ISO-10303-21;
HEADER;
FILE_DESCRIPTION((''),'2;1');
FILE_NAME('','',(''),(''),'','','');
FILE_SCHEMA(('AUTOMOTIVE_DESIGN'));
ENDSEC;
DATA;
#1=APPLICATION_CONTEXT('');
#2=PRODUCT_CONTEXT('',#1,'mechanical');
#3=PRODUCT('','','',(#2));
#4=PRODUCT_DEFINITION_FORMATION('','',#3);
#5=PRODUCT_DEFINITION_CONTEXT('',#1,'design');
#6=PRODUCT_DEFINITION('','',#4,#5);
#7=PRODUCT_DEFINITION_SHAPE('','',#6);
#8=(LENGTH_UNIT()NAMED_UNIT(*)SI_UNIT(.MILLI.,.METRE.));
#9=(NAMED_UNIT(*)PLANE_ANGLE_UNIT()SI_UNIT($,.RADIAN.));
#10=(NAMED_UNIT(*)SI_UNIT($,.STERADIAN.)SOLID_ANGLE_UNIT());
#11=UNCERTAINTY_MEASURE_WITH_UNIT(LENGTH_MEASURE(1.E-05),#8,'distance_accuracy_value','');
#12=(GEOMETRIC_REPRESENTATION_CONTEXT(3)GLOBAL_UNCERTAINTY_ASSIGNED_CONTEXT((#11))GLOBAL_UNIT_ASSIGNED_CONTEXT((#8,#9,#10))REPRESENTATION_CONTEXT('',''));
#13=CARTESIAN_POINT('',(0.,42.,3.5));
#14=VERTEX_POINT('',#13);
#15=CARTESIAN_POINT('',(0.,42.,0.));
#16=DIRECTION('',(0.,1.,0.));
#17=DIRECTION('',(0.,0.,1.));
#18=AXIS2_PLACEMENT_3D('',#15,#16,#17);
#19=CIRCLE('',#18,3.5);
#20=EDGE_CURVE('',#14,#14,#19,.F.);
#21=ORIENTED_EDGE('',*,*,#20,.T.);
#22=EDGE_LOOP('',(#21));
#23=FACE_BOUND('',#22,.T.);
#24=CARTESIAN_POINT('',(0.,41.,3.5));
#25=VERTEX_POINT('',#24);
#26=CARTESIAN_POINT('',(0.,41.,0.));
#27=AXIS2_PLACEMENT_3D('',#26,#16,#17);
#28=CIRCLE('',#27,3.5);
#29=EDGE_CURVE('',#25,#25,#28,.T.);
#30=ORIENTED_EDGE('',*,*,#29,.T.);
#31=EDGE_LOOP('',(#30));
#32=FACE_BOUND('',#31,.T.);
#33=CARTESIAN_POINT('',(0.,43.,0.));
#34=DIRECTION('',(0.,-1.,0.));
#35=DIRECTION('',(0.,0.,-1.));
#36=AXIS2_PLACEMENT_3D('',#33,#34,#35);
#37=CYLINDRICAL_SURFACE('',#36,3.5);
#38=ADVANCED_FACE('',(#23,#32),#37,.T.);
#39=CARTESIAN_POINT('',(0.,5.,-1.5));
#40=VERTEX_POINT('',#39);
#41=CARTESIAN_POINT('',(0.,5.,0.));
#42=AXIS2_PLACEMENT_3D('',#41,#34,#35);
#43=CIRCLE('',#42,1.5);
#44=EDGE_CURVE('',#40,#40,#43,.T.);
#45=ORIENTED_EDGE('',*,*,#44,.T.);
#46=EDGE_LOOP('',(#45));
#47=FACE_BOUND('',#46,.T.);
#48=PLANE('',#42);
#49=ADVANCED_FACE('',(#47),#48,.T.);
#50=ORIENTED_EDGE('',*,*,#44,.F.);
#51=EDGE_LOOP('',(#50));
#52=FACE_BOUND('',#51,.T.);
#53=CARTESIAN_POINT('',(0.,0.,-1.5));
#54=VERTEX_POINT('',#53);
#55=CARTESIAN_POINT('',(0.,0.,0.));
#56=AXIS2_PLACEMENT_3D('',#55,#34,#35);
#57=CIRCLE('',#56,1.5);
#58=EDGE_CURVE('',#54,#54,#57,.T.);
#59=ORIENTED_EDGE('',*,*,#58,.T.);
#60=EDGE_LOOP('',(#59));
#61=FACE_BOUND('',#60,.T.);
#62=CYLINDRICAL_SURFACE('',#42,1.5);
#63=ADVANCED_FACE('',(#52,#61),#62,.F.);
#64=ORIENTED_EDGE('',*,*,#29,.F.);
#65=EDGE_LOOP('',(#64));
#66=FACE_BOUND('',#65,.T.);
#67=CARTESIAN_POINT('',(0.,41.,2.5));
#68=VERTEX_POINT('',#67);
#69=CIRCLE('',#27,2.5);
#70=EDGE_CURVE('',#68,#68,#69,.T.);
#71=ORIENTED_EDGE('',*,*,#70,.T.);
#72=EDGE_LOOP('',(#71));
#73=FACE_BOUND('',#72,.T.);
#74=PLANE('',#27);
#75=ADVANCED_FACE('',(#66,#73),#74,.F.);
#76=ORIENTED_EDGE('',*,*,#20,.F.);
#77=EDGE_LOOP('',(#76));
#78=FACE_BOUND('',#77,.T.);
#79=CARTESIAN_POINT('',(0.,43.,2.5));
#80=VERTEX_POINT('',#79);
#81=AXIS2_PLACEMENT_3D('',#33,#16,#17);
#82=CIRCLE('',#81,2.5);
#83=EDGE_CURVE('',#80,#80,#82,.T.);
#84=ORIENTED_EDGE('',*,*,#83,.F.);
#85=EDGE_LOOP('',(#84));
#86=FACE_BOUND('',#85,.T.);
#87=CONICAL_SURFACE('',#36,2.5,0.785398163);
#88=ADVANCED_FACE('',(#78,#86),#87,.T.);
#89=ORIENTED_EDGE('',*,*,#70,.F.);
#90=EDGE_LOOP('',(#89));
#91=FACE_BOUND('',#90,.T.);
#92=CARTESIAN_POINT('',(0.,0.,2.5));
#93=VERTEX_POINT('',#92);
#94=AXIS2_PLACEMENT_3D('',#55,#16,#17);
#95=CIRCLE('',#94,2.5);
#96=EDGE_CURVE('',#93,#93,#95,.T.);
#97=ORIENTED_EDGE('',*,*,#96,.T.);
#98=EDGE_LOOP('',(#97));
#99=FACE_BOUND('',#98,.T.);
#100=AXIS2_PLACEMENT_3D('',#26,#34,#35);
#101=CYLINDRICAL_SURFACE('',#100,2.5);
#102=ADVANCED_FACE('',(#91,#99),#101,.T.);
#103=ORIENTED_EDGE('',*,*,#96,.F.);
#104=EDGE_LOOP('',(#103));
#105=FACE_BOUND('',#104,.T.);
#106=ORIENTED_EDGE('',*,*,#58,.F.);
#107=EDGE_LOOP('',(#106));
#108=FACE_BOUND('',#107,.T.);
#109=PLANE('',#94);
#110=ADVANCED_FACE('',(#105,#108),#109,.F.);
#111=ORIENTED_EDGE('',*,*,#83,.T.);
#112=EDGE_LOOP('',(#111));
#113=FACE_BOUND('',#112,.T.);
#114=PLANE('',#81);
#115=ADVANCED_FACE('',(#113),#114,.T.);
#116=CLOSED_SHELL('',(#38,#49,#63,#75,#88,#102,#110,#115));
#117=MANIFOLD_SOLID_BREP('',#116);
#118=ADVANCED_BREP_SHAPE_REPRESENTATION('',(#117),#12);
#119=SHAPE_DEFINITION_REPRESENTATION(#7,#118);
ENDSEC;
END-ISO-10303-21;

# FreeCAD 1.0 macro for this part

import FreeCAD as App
import Part
import Sketcher

V = App.Vector
Q = App.Units.Quantity


def edges_at(feature, points):
    """Names of the edges that pass closest to the given points."""
    edges = feature.Shape.Edges
    near = lambda p: min(range(len(edges)), key=lambda i: edges[i].distToShape(Part.Vertex(*p))[0])
    return sorted({f"Edge{near(p) + 1}" for p in points})

doc = App.newDocument("Part")
params = doc.addObject("Spreadsheet::Sheet", "Params")
for row, (alias, value) in enumerate([
    ("sketch1_diameter", "5 mm"),
    ("pad1_length", "41 mm"),
    ("sketch2_diameter", "7 mm"),
    ("pad2_length", "2 mm"),
    ("chamfer_size", "1 mm"),
    ("sketch3_diameter", "3 mm"),
    ("pocket1_length", "5 mm"),
], start=1):
    params.set(f"A{row}", alias)
    params.set(f"B{row}", "=" + value)
    params.setAlias(f"B{row}", alias)

body = doc.addObject("PartDesign::Body", "Body")

sketch1 = body.newObject("Sketcher::SketchObject", "Sketch")
sketch1.AttachmentSupport = (doc.getObject("XZ_Plane"), [""])
sketch1.MapMode = "FlatFace"
sketch1.addGeometry(Part.Circle(V(0, 0, 0), V(0, 0, 1), 2.5), False)
sketch1.addConstraint([
    Sketcher.Constraint("Coincident", 0, 3, -1, 1),
    Sketcher.Constraint("Diameter", 0, Q("5 mm")),
])
sketch1.setExpression("Constraints[1]", "Params.sketch1_diameter")
pad1 = body.newObject("PartDesign::Pad", "Pad")
pad1.Profile = sketch1
pad1.setExpression("Length", "Params.pad1_length")
pad1.Reversed = True

sketch2 = body.newObject("Sketcher::SketchObject", "Sketch001")
sketch2.AttachmentSupport = (doc.getObject("XZ_Plane"), [""])
sketch2.MapMode = "FlatFace"
sketch2.AttachmentOffset = App.Placement(V(0, 0, -41), App.Rotation())
sketch2.addGeometry(Part.Circle(V(0, 0, 0), V(0, 0, 1), 3.5), False)
sketch2.addConstraint([
    Sketcher.Constraint("Coincident", 0, 3, -1, 1),
    Sketcher.Constraint("Diameter", 0, Q("7 mm")),
])
sketch2.setExpression("Constraints[1]", "Params.sketch2_diameter")
pad2 = body.newObject("PartDesign::Pad", "Pad001")
pad2.Profile = sketch2
pad2.setExpression("Length", "Params.pad2_length")
pad2.Reversed = True
doc.recompute()

chamfer = body.newObject("PartDesign::Chamfer", "Chamfer")
chamfer.Base = (pad2, edges_at(pad2, [(-3.5, 43, 0)]))
chamfer.setExpression("Size", "Params.chamfer_size")

sketch3 = body.newObject("Sketcher::SketchObject", "Sketch002")
sketch3.AttachmentSupport = (doc.getObject("XZ_Plane"), [""])
sketch3.MapMode = "FlatFace"
sketch3.addGeometry(Part.Circle(V(0, 0, 0), V(0, 0, 1), 1.5), False)
sketch3.addConstraint([
    Sketcher.Constraint("Coincident", 0, 3, -1, 1),
    Sketcher.Constraint("Diameter", 0, Q("3 mm")),
])
sketch3.setExpression("Constraints[1]", "Params.sketch3_diameter")
pocket1 = body.newObject("PartDesign::Pocket", "Pocket")
pocket1.Profile = sketch3
pocket1.setExpression("Length", "Params.pocket1_length")

doc.recompute()
